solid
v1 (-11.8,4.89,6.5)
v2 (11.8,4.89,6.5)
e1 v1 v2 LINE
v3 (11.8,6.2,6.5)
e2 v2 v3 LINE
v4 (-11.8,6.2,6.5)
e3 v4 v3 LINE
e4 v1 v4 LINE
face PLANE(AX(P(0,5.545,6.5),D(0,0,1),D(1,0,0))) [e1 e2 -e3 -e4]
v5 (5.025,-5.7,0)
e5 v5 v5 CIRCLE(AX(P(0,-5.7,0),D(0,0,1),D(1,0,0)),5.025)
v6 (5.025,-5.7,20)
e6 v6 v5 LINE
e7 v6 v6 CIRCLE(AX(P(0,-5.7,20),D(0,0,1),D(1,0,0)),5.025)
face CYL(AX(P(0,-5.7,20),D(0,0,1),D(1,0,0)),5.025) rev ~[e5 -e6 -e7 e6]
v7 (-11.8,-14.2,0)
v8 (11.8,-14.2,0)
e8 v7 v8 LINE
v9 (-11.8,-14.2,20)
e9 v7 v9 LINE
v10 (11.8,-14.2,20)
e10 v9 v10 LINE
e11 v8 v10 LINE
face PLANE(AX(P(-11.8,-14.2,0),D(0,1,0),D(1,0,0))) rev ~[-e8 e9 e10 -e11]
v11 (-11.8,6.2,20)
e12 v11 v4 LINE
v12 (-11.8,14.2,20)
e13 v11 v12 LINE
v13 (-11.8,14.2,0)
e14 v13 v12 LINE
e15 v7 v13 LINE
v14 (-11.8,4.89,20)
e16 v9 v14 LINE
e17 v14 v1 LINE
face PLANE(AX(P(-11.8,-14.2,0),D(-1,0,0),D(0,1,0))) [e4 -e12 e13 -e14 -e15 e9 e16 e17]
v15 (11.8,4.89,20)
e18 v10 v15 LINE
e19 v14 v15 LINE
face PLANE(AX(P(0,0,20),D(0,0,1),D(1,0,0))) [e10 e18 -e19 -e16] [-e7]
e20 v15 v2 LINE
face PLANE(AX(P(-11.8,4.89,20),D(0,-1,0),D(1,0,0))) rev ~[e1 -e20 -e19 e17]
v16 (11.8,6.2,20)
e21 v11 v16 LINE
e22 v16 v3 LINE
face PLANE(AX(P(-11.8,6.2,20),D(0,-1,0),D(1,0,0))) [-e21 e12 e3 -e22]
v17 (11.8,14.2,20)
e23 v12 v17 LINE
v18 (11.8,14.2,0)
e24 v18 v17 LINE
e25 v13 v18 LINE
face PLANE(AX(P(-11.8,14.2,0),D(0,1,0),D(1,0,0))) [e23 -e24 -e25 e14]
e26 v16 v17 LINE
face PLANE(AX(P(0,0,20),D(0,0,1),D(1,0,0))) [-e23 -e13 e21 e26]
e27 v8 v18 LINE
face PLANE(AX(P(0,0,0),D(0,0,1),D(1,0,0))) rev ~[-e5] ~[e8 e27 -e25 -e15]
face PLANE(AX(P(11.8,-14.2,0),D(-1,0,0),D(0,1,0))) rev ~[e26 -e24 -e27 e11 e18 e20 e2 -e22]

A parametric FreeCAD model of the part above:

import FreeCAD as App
import Part
import Sketcher

V = App.Vector


def add_polygon(sketch, points):
    """Adds a closed chain of lines whose ends are joined by coincident constraints."""
    first, n = sketch.GeometryCount, len(points)
    for a, b in zip(points, points[1:] + points[:1]):
        sketch.addGeometry(Part.LineSegment(App.Vector(*a, 0), App.Vector(*b, 0)), False)
    for i in range(n):
        sketch.addConstraint(Sketcher.Constraint("Coincident", first + i, 2, first + (i + 1) % n, 1))

doc = App.newDocument("Part")
body = doc.addObject("PartDesign::Body", "Body")

# Sketch on XY plane
sketch1 = doc.addObject("Sketcher::SketchObject", "Sketch")
body.addObject(sketch1)
sketch1.AttachmentSupport = (doc.XY_Plane, [""])
sketch1.MapMode = "FlatFace"
add_polygon(sketch1, [(-12, 14), (-12, -14), (12, -14), (12, 14)])  # lines 0-3
sketch1.addConstraint([
    Sketcher.Constraint("Vertical", 0),
    Sketcher.Constraint("Horizontal", 1),
    Sketcher.Constraint("Vertical", 2),
    Sketcher.Constraint("Horizontal", 3),
    Sketcher.Constraint("Symmetric", 0, 2, 2, 2, -1, 1),
    Sketcher.Constraint("DistanceX", 1, 1, 1, 2, 23.6),
    Sketcher.Constraint("DistanceY", 0, 2, 0, 1, 28.4),
])
pad1 = doc.addObject("PartDesign::Pad", "Pad")
body.addObject(pad1)
pad1.Profile = sketch1
pad1.Length = 20

# Sketch on XY plane
sketch2 = doc.addObject("Sketcher::SketchObject", "Sketch001")
body.addObject(sketch2)
sketch2.AttachmentSupport = (doc.XY_Plane, [""])
sketch2.MapMode = "FlatFace"
sketch2.AttachmentOffset = App.Placement(V(0, 0, 20), App.Rotation())
add_polygon(sketch2, [(-11.8, 6.2), (-11.8, 4.9), (11.8, 4.9), (11.8, 6.2)])  # lines 0-3
sketch2.addConstraint([
    Sketcher.Constraint("Vertical", 0),
    Sketcher.Constraint("Horizontal", 1),
    Sketcher.Constraint("Vertical", 2),
    Sketcher.Constraint("Horizontal", 3),
    Sketcher.Constraint("DistanceX", 1, 1, 1, 2, 23.6),
    Sketcher.Constraint("DistanceY", 0, 2, 0, 1, 1.31),
    Sketcher.Constraint("DistanceX", 0, 2, -1, 1, 11.8),
    Sketcher.Constraint("DistanceY", -1, 1, 2, 2, 6.2),
])
pocket1 = doc.addObject("PartDesign::Pocket", "Pocket")
body.addObject(pocket1)
pocket1.Profile = sketch2
pocket1.Length = 13.5

# Sketch on XY plane
sketch3 = doc.addObject("Sketcher::SketchObject", "Sketch002")
body.addObject(sketch3)
sketch3.AttachmentSupport = (doc.XY_Plane, [""])
sketch3.MapMode = "FlatFace"
sketch3.AttachmentOffset = App.Placement(V(0, 0, 20), App.Rotation())
sketch3.addGeometry(Part.Circle(V(0, -6, 0), V(0, 0, 1), 5), False)
sketch3.addConstraint([
    Sketcher.Constraint("PointOnObject", 0, 3, -2),
    Sketcher.Constraint("Diameter", 0, 10.05),
    Sketcher.Constraint("DistanceY", 0, 3, -1, 1, 5.7),
])
pocket2 = doc.addObject("PartDesign::Pocket", "Pocket001")
body.addObject(pocket2)
pocket2.Profile = sketch3
pocket2.Type = "ThroughAll"

doc.recompute()
